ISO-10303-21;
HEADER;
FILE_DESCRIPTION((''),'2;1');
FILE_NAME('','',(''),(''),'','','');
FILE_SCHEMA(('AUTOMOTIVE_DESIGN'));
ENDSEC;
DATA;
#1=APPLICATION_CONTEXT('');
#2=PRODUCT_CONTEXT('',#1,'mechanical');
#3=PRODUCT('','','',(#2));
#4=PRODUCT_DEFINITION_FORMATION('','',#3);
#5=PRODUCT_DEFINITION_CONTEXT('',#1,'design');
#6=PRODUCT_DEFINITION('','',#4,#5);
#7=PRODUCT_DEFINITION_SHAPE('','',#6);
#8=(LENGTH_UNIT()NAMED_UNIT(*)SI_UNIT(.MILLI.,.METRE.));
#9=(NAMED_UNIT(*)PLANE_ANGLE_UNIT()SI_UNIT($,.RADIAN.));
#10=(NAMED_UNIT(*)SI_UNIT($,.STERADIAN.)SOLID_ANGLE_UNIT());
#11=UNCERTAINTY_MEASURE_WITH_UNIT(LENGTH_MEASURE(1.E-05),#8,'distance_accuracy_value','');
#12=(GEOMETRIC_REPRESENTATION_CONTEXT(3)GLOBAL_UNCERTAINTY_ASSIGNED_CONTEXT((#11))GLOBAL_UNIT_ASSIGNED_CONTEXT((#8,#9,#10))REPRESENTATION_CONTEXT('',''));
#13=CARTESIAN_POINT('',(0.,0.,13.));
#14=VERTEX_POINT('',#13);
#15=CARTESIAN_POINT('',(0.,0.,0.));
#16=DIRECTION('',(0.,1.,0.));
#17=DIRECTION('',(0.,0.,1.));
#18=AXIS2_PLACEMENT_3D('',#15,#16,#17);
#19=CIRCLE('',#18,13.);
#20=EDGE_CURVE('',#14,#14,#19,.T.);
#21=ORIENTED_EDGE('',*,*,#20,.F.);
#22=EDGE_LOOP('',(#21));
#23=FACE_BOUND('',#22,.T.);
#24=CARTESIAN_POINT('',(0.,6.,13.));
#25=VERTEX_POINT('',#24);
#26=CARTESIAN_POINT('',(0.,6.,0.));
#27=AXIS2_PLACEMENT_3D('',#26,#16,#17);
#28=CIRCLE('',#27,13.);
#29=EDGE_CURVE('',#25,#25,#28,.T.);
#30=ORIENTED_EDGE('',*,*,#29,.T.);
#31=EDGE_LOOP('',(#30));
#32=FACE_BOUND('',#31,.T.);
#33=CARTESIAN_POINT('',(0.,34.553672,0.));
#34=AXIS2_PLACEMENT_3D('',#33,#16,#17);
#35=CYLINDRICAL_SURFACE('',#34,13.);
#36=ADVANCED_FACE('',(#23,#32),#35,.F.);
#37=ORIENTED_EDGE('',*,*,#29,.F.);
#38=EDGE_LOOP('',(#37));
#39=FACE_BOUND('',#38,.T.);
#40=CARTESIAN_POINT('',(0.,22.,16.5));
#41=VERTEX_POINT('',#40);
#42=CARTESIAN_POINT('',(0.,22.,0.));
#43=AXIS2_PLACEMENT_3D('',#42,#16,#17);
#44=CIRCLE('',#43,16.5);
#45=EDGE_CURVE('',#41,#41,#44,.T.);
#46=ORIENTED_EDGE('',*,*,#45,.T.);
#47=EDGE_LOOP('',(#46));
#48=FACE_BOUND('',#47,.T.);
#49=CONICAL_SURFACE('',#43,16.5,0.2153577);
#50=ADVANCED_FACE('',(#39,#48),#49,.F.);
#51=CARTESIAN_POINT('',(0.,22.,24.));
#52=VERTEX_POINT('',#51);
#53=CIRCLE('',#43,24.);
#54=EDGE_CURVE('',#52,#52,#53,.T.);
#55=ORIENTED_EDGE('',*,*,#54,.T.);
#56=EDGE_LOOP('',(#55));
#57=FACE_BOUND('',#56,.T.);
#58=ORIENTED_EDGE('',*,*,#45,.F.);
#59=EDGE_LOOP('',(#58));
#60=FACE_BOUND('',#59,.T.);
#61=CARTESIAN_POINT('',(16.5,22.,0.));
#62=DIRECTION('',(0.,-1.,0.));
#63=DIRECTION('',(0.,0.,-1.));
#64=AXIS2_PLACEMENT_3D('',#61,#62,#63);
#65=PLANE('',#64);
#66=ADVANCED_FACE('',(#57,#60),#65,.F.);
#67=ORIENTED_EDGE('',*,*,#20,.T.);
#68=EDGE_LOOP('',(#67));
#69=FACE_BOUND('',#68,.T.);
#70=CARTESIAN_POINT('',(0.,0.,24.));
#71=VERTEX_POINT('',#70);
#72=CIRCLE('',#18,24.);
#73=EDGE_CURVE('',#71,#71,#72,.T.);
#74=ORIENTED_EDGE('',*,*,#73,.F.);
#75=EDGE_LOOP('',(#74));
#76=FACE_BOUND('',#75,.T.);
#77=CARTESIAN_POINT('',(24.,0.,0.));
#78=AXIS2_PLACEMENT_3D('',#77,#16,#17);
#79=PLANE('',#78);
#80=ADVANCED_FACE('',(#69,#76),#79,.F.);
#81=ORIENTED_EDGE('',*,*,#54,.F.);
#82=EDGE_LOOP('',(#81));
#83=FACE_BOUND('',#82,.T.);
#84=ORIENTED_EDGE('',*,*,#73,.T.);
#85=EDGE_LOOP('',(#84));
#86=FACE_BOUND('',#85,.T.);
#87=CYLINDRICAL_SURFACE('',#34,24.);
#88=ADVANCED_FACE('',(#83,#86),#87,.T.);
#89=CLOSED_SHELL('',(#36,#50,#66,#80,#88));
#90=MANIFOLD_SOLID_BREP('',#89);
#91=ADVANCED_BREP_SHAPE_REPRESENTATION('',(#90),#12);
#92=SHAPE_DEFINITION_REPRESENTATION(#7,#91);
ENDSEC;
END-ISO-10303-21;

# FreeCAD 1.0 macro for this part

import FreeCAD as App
import Part
import Sketcher
Q = App.Units.Quantity


def add_polygon(sketch, points):
    """Adds a closed chain of lines whose ends are joined by coincident constraints."""
    first, n = sketch.GeometryCount, len(points)
    for a, b in zip(points, points[1:] + points[:1]):
        sketch.addGeometry(Part.LineSegment(App.Vector(*a, 0), App.Vector(*b, 0)), False)
    for i in range(n):
        sketch.addConstraint(Sketcher.Constraint("Coincident", first + i, 2, first + (i + 1) % n, 1))

doc = App.newDocument("Part")
body = doc.addObject("PartDesign::Body", "Body")

# Sketch on XY plane
sketch1 = doc.addObject("Sketcher::SketchObject", "Sketch")
body.addObject(sketch1)
sketch1.AttachmentSupport = (doc.XY_Plane, [""])
sketch1.MapMode = "FlatFace"
add_polygon(sketch1, [(13, 6), (13, 0), (24, 0), (24, 22), (16, 22)])  # lines 0-4
sketch1.addConstraint(Sketcher.Constraint("Vertical", 0))
sketch1.addConstraint(Sketcher.Constraint("Horizontal", 1))
sketch1.addConstraint(Sketcher.Constraint("Vertical", 2))
sketch1.addConstraint(Sketcher.Constraint("Horizontal", 3))
sketch1.addConstraint(Sketcher.Constraint("PointOnObject", 0, 2, -1))
sketch1.addConstraint(Sketcher.Constraint("DistanceX", 1, 1, 1, 2, Q("11 mm")))
sketch1.addConstraint(Sketcher.Constraint("DistanceY", 0, 2, 0, 1, Q("6 mm")))
sketch1.addConstraint(Sketcher.Constraint("DistanceY", 2, 1, 2, 2, Q("22 mm")))
sketch1.addConstraint(Sketcher.Constraint("DistanceX", 3, 2, 3, 1, Q("7.5 mm")))
sketch1.addConstraint(Sketcher.Constraint("DistanceX", -1, 1, 0, 2, Q("13 mm")))
revolution = doc.addObject("PartDesign::Revolution", "Revolution")
body.addObject(revolution)
revolution.Profile = sketch1
revolution.ReferenceAxis = (sketch1, ["V_Axis"])
revolution.Angle = 360

doc.recompute()
